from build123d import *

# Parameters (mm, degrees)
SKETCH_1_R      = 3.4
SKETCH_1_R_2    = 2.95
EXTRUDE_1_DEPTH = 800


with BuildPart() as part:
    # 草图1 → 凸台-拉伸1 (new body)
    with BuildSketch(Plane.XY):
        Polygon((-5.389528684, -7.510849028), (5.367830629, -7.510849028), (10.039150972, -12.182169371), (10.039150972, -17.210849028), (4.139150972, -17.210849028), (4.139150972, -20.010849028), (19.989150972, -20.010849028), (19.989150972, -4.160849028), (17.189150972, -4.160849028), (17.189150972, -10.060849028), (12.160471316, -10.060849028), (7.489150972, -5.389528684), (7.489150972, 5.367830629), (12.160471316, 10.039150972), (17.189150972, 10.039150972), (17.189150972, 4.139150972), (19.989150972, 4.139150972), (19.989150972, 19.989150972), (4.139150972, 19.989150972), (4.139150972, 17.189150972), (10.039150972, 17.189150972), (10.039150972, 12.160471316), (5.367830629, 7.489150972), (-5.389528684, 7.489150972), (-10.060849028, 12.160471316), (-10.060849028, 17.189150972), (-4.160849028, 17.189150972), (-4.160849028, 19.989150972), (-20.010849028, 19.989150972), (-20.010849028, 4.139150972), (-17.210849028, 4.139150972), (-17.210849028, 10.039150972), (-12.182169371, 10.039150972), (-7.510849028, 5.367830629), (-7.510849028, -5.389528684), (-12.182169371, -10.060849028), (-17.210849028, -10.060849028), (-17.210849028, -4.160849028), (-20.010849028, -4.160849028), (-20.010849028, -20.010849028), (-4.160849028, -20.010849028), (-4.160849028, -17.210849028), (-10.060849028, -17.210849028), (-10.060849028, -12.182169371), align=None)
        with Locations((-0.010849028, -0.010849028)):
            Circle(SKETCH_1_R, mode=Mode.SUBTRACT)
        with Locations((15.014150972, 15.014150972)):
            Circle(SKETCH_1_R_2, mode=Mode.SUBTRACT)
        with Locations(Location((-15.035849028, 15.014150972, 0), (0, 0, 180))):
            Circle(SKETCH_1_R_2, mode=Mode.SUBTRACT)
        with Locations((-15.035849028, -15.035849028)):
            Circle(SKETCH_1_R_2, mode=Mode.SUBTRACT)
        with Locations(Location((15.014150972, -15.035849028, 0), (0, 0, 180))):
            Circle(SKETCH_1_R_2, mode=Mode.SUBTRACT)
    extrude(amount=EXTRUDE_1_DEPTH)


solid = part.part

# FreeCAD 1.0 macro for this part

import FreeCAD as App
import Part
import Sketcher

doc = App.newDocument("Part")
params = doc.addObject("Spreadsheet::Sheet", "Params")
for row, (alias, value) in enumerate([
    ("sketch1_diameter", "5.9 mm"),
    ("sketch1_diameter2", "6.8 mm"),
    ("sketch1_width", "5.9 mm"),
    ("sketch1_width2", "2.8 mm"),
    ("sketch1_width3", "15.85 mm"),
    ("pad1_length", "800 mm"),
], start=1):
    params.set(f"A{row}", alias)
    params.set(f"B{row}", "=" + value)
    params.setAlias(f"B{row}", alias)

body = doc.addObject("PartDesign::Body", "Body")

sketch1 = doc.addObject("Sketcher::SketchObject", "Sketch")
body.addObject(sketch1)
sketch1.AttachmentSupport = (doc.XY_Plane, [""])
sketch1.MapMode = "FlatFace"
sketch1.addGeometry([
    Part.LineSegment(App.Vector(-5.4, -7.5, 0), App.Vector(5.4, -7.5, 0)),
    Part.LineSegment(App.Vector(5.4, -7.5, 0), App.Vector(10, -12.2, 0)),
    Part.LineSegment(App.Vector(10, -12.2, 0), App.Vector(10, -17.2, 0)),
    Part.LineSegment(App.Vector(10, -17.2, 0), App.Vector(4.1, -17.2, 0)),
    Part.LineSegment(App.Vector(4.1, -17.2, 0), App.Vector(4.1, -20, 0)),
    Part.LineSegment(App.Vector(4.1, -20, 0), App.Vector(20, -20, 0)),
    Part.LineSegment(App.Vector(20, -20, 0), App.Vector(20, -4.2, 0)),
    Part.LineSegment(App.Vector(20, -4.2, 0), App.Vector(17.2, -4.2, 0)),
    Part.LineSegment(App.Vector(17.2, -4.2, 0), App.Vector(17.2, -10.1, 0)),
    Part.LineSegment(App.Vector(17.2, -10.1, 0), App.Vector(12.2, -10.1, 0)),
    Part.LineSegment(App.Vector(12.2, -10.1, 0), App.Vector(7.5, -5.4, 0)),
    Part.LineSegment(App.Vector(7.5, -5.4, 0), App.Vector(7.5, 5.4, 0)),
    Part.LineSegment(App.Vector(7.5, 5.4, 0), App.Vector(12.2, 10, 0)),
    Part.LineSegment(App.Vector(12.2, 10, 0), App.Vector(17.2, 10, 0)),
    Part.LineSegment(App.Vector(17.2, 10, 0), App.Vector(17.2, 4.1, 0)),
    Part.LineSegment(App.Vector(17.2, 4.1, 0), App.Vector(20, 4.1, 0)),
    Part.LineSegment(App.Vector(20, 4.1, 0), App.Vector(20, 20, 0)),
    Part.LineSegment(App.Vector(20, 20, 0), App.Vector(4.1, 20, 0)),
    Part.LineSegment(App.Vector(4.1, 20, 0), App.Vector(4.1, 17.2, 0)),
    Part.LineSegment(App.Vector(4.1, 17.2, 0), App.Vector(10, 17.2, 0)),
    Part.LineSegment(App.Vector(10, 17.2, 0), App.Vector(10, 12.2, 0)),
    Part.LineSegment(App.Vector(10, 12.2, 0), App.Vector(5.4, 7.5, 0)),
    Part.LineSegment(App.Vector(5.4, 7.5, 0), App.Vector(-5.4, 7.5, 0)),
    Part.LineSegment(App.Vector(-5.4, 7.5, 0), App.Vector(-10.1, 12.2, 0)),
    Part.LineSegment(App.Vector(-10.1, 12.2, 0), App.Vector(-10.1, 17.2, 0)),
    Part.LineSegment(App.Vector(-10.1, 17.2, 0), App.Vector(-4.2, 17.2, 0)),
    Part.LineSegment(App.Vector(-4.2, 17.2, 0), App.Vector(-4.2, 20, 0)),
    Part.LineSegment(App.Vector(-4.2, 20, 0), App.Vector(-20, 20, 0)),
    Part.LineSegment(App.Vector(-20, 20, 0), App.Vector(-20, 4.1, 0)),
    Part.LineSegment(App.Vector(-20, 4.1, 0), App.Vector(-17.2, 4.1, 0)),
    Part.LineSegment(App.Vector(-17.2, 4.1, 0), App.Vector(-17.2, 10, 0)),
    Part.LineSegment(App.Vector(-17.2, 10, 0), App.Vector(-12.2, 10, 0)),
    Part.LineSegment(App.Vector(-12.2, 10, 0), App.Vector(-7.5, 5.4, 0)),
    Part.LineSegment(App.Vector(-7.5, 5.4, 0), App.Vector(-7.5, -5.4, 0)),
    Part.LineSegment(App.Vector(-7.5, -5.4, 0), App.Vector(-12.2, -10.1, 0)),
    Part.LineSegment(App.Vector(-12.2, -10.1, 0), App.Vector(-17.2, -10.1, 0)),
    Part.LineSegment(App.Vector(-17.2, -10.1, 0), App.Vector(-17.2, -4.2, 0)),
    Part.LineSegment(App.Vector(-17.2, -4.2, 0), App.Vector(-20, -4.2, 0)),
    Part.LineSegment(App.Vector(-20, -4.2, 0), App.Vector(-20, -20, 0)),
    Part.LineSegment(App.Vector(-20, -20, 0), App.Vector(-4.2, -20, 0)),
    Part.LineSegment(App.Vector(-4.2, -20, 0), App.Vector(-4.2, -17.2, 0)),
    Part.LineSegment(App.Vector(-4.2, -17.2, 0), App.Vector(-10.1, -17.2, 0)),
    Part.LineSegment(App.Vector(-10.1, -17.2, 0), App.Vector(-10.1, -12.2, 0)),
    Part.LineSegment(App.Vector(-10.1, -12.2, 0), App.Vector(-5.4, -7.5, 0)),
    Part.Circle(App.Vector(-15, -15, 0), App.Vector(0, 0, 1), 3),
    Part.Circle(App.Vector(15, -15, 0), App.Vector(0, 0, 1), 3),
    Part.Circle(App.Vector(-15, 15, 0), App.Vector(0, 0, 1), 3),
    Part.Circle(App.Vector(0, 0, 0), App.Vector(0, 0, 1), 3.4),
    Part.Circle(App.Vector(15, 15, 0), App.Vector(0, 0, 1), 3),
], False)
sketch1.addConstraint([
    Sketcher.Constraint("Coincident", 0, 2, 1, 1),
    Sketcher.Constraint("Coincident", 1, 2, 2, 1),
    Sketcher.Constraint("Coincident", 2, 2, 3, 1),
    Sketcher.Constraint("Coincident", 3, 2, 4, 1),
    Sketcher.Constraint("Coincident", 4, 2, 5, 1),
    Sketcher.Constraint("Coincident", 5, 2, 6, 1),
    Sketcher.Constraint("Coincident", 6, 2, 7, 1),
    Sketcher.Constraint("Coincident", 7, 2, 8, 1),
    Sketcher.Constraint("Coincident", 8, 2, 9, 1),
    Sketcher.Constraint("Coincident", 9, 2, 10, 1),
    Sketcher.Constraint("Coincident", 10, 2, 11, 1),
    Sketcher.Constraint("Coincident", 11, 2, 12, 1),
    Sketcher.Constraint("Coincident", 12, 2, 13, 1),
    Sketcher.Constraint("Coincident", 13, 2, 14, 1),
    Sketcher.Constraint("Coincident", 14, 2, 15, 1),
    Sketcher.Constraint("Coincident", 15, 2, 16, 1),
    Sketcher.Constraint("Coincident", 16, 2, 17, 1),
    Sketcher.Constraint("Coincident", 17, 2, 18, 1),
    Sketcher.Constraint("Coincident", 18, 2, 19, 1),
    Sketcher.Constraint("Coincident", 19, 2, 20, 1),
    Sketcher.Constraint("Coincident", 20, 2, 21, 1),
    Sketcher.Constraint("Coincident", 21, 2, 22, 1),
    Sketcher.Constraint("Coincident", 22, 2, 23, 1),
    Sketcher.Constraint("Coincident", 23, 2, 24, 1),
    Sketcher.Constraint("Coincident", 24, 2, 25, 1),
    Sketcher.Constraint("Coincident", 25, 2, 26, 1),
    Sketcher.Constraint("Coincident", 26, 2, 27, 1),
    Sketcher.Constraint("Coincident", 27, 2, 28, 1),
    Sketcher.Constraint("Coincident", 28, 2, 29, 1),
    Sketcher.Constraint("Coincident", 29, 2, 30, 1),
    Sketcher.Constraint("Coincident", 30, 2, 31, 1),
    Sketcher.Constraint("Coincident", 31, 2, 32, 1),
    Sketcher.Constraint("Coincident", 32, 2, 33, 1),
    Sketcher.Constraint("Coincident", 33, 2, 34, 1),
    Sketcher.Constraint("Coincident", 34, 2, 35, 1),
    Sketcher.Constraint("Coincident", 35, 2, 36, 1),
    Sketcher.Constraint("Coincident", 36, 2, 37, 1),
    Sketcher.Constraint("Coincident", 37, 2, 38, 1),
    Sketcher.Constraint("Coincident", 38, 2, 39, 1),
    Sketcher.Constraint("Coincident", 39, 2, 40, 1),
    Sketcher.Constraint("Coincident", 40, 2, 41, 1),
    Sketcher.Constraint("Coincident", 41, 2, 42, 1),
    Sketcher.Constraint("Coincident", 42, 2, 43, 1),
    Sketcher.Constraint("Coincident", 43, 2, 0, 1),
    Sketcher.Constraint("Horizontal", 0),
    Sketcher.Constraint("Vertical", 2),
    Sketcher.Constraint("Horizontal", 3),
    Sketcher.Constraint("Vertical", 4),
    Sketcher.Constraint("Horizontal", 5),
    Sketcher.Constraint("Vertical", 6),
    Sketcher.Constraint("Horizontal", 7),
    Sketcher.Constraint("Vertical", 8),
    Sketcher.Constraint("Horizontal", 9),
    Sketcher.Constraint("Vertical", 11),
    Sketcher.Constraint("Horizontal", 13),
    Sketcher.Constraint("Vertical", 14),
    Sketcher.Constraint("Horizontal", 15),
    Sketcher.Constraint("Vertical", 16),
    Sketcher.Constraint("Horizontal", 17),
    Sketcher.Constraint("Vertical", 18),
    Sketcher.Constraint("Horizontal", 19),
    Sketcher.Constraint("Vertical", 20),
    Sketcher.Constraint("Horizontal", 22),
    Sketcher.Constraint("Vertical", 24),
    Sketcher.Constraint("Horizontal", 25),
    Sketcher.Constraint("Vertical", 26),
    Sketcher.Constraint("Horizontal", 27),
    Sketcher.Constraint("Vertical", 28),
    Sketcher.Constraint("Horizontal", 29),
    Sketcher.Constraint("Vertical", 30),
    Sketcher.Constraint("Horizontal", 31),
    Sketcher.Constraint("Vertical", 33),
    Sketcher.Constraint("Horizontal", 35),
    Sketcher.Constraint("Vertical", 36),
    Sketcher.Constraint("Horizontal", 37),
    Sketcher.Constraint("Vertical", 38),
    Sketcher.Constraint("Horizontal", 39),
    Sketcher.Constraint("Vertical", 40),
    Sketcher.Constraint("Horizontal", 41),
    Sketcher.Constraint("Vertical", 42),
    Sketcher.Constraint("Equal", 44, 45),
    Sketcher.Constraint("Equal", 45, 46),
    Sketcher.Constraint("Equal", 46, 48),
    Sketcher.Constraint("Parallel", 1, 10),
    Sketcher.Constraint("Perpendicular", 10, 12),
    Sketcher.Constraint("Parallel", 12, 21),
    Sketcher.Constraint("Perpendicular", 21, 23),
    Sketcher.Constraint("Parallel", 23, 32),
    Sketcher.Constraint("Perpendicular", 32, 34),
    Sketcher.Constraint("Parallel", 34, 43),
    Sketcher.Constraint("Horizontal", 44, 3, 45, 3),
    Sketcher.Constraint("Horizontal", 46, 3, 48, 3),
    Sketcher.Constraint("Horizontal", 20, 2, 23, 2),
    Sketcher.Constraint("Horizontal", 19, 2, 24, 2),
    Sketcher.Constraint("Horizontal", 17, 2, 26, 2),
    Sketcher.Constraint("Horizontal", 15, 2, 28, 2),
    Sketcher.Constraint("Horizontal", 13, 2, 30, 2),
    Sketcher.Constraint("Horizontal", 11, 2, 32, 2),
    Sketcher.Constraint("Horizontal", 10, 2, 33, 2),
    Sketcher.Constraint("Horizontal", 9, 2, 34, 2),
    Sketcher.Constraint("Horizontal", 7, 2, 36, 2),
    Sketcher.Constraint("Horizontal", 5, 2, 38, 2),
    Sketcher.Constraint("Horizontal", 3, 2, 40, 2),
    Sketcher.Constraint("Horizontal", 1, 2, 42, 2),
    Sketcher.Constraint("Vertical", 44, 3, 46, 3),
    Sketcher.Constraint("Vertical", 45, 3, 48, 3),
    Sketcher.Constraint("Vertical", 9, 2, 12, 2),
    Sketcher.Constraint("Vertical", 8, 2, 13, 2),
    Sketcher.Constraint("Vertical", 6, 2, 15, 2),
    Sketcher.Constraint("Vertical", 4, 2, 17, 2),
    Sketcher.Constraint("Vertical", 2, 2, 19, 2),
    Sketcher.Constraint("Vertical", 0, 2, 21, 2),
    Sketcher.Constraint("Vertical", 31, 2, 34, 2),
    Sketcher.Constraint("Vertical", 30, 2, 35, 2),
    Sketcher.Constraint("Vertical", 28, 2, 37, 2),
    Sketcher.Constraint("Vertical", 26, 2, 39, 2),
    Sketcher.Constraint("Vertical", 24, 2, 41, 2),
    Sketcher.Constraint("Equal", 19, 25),
    Sketcher.Constraint("Equal", 17, 27),
    Sketcher.Constraint("Equal", 15, 29),
    Sketcher.Constraint("Equal", 13, 31),
    Sketcher.Constraint("Equal", 35, 2),
    Sketcher.Constraint("Equal", 37, 4),
    Sketcher.Constraint("Equal", 39, 6),
    Sketcher.Constraint("Equal", 41, 8),
    Sketcher.Constraint("Equal", 22, 11),
    Sketcher.Constraint("Equal", 8, 14),
    Sketcher.Constraint("Equal", 6, 16),
    Sketcher.Constraint("Equal", 4, 18),
    Sketcher.Constraint("Equal", 2, 20),
    Sketcher.Constraint("Equal", 1, 10),
    Sketcher.Constraint("Diameter", 44, 5.9),
    Sketcher.Constraint("Diameter", 47, 6.8),
    Sketcher.Constraint("DistanceX", 3, 2, 3, 1, 5.9),
    Sketcher.Constraint("DistanceX", 7, 2, 7, 1, 2.8),
    Sketcher.Constraint("DistanceX", 5, 1, 5, 2, 15.85),
    Sketcher.Constraint("DistanceY", 0, 2, 47, 3, 7.5),
    Sketcher.Constraint("DistanceY", 2, 2, 0, 2, 9.7),
    Sketcher.Constraint("DistanceX", 47, 3, 10, 2, 7.5),
    Sketcher.Constraint("DistanceY", 7, 2, 12, 2, 14.2),
    Sketcher.Constraint("DistanceX", 44, 3, 45, 3, 30.05),
    Sketcher.Constraint("DistanceY", 44, 3, 46, 3, 30.05),
    Sketcher.Constraint("DistanceX", 44, 3, 47, 3, 15.025),
    Sketcher.Constraint("DistanceY", 44, 3, 47, 3, 15.025),
    Sketcher.Constraint("DistanceX", 0, 1, 0, 2, 10.757359),
    Sketcher.Constraint("DistanceX", 44, 3, -1, 1, 15.035849),
    Sketcher.Constraint("DistanceY", 44, 3, -1, 1, 15.035849),
])
sketch1.setExpression("Constraints[131]", "Params.sketch1_diameter")
sketch1.setExpression("Constraints[132]", "Params.sketch1_diameter2")
sketch1.setExpression("Constraints[133]", "Params.sketch1_width")
sketch1.setExpression("Constraints[134]", "Params.sketch1_width2")
sketch1.setExpression("Constraints[135]", "Params.sketch1_width3")
pad1 = doc.addObject("PartDesign::Pad", "Pad")
body.addObject(pad1)
pad1.Profile = sketch1
pad1.setExpression("Length", "Params.pad1_length")

doc.recompute()
